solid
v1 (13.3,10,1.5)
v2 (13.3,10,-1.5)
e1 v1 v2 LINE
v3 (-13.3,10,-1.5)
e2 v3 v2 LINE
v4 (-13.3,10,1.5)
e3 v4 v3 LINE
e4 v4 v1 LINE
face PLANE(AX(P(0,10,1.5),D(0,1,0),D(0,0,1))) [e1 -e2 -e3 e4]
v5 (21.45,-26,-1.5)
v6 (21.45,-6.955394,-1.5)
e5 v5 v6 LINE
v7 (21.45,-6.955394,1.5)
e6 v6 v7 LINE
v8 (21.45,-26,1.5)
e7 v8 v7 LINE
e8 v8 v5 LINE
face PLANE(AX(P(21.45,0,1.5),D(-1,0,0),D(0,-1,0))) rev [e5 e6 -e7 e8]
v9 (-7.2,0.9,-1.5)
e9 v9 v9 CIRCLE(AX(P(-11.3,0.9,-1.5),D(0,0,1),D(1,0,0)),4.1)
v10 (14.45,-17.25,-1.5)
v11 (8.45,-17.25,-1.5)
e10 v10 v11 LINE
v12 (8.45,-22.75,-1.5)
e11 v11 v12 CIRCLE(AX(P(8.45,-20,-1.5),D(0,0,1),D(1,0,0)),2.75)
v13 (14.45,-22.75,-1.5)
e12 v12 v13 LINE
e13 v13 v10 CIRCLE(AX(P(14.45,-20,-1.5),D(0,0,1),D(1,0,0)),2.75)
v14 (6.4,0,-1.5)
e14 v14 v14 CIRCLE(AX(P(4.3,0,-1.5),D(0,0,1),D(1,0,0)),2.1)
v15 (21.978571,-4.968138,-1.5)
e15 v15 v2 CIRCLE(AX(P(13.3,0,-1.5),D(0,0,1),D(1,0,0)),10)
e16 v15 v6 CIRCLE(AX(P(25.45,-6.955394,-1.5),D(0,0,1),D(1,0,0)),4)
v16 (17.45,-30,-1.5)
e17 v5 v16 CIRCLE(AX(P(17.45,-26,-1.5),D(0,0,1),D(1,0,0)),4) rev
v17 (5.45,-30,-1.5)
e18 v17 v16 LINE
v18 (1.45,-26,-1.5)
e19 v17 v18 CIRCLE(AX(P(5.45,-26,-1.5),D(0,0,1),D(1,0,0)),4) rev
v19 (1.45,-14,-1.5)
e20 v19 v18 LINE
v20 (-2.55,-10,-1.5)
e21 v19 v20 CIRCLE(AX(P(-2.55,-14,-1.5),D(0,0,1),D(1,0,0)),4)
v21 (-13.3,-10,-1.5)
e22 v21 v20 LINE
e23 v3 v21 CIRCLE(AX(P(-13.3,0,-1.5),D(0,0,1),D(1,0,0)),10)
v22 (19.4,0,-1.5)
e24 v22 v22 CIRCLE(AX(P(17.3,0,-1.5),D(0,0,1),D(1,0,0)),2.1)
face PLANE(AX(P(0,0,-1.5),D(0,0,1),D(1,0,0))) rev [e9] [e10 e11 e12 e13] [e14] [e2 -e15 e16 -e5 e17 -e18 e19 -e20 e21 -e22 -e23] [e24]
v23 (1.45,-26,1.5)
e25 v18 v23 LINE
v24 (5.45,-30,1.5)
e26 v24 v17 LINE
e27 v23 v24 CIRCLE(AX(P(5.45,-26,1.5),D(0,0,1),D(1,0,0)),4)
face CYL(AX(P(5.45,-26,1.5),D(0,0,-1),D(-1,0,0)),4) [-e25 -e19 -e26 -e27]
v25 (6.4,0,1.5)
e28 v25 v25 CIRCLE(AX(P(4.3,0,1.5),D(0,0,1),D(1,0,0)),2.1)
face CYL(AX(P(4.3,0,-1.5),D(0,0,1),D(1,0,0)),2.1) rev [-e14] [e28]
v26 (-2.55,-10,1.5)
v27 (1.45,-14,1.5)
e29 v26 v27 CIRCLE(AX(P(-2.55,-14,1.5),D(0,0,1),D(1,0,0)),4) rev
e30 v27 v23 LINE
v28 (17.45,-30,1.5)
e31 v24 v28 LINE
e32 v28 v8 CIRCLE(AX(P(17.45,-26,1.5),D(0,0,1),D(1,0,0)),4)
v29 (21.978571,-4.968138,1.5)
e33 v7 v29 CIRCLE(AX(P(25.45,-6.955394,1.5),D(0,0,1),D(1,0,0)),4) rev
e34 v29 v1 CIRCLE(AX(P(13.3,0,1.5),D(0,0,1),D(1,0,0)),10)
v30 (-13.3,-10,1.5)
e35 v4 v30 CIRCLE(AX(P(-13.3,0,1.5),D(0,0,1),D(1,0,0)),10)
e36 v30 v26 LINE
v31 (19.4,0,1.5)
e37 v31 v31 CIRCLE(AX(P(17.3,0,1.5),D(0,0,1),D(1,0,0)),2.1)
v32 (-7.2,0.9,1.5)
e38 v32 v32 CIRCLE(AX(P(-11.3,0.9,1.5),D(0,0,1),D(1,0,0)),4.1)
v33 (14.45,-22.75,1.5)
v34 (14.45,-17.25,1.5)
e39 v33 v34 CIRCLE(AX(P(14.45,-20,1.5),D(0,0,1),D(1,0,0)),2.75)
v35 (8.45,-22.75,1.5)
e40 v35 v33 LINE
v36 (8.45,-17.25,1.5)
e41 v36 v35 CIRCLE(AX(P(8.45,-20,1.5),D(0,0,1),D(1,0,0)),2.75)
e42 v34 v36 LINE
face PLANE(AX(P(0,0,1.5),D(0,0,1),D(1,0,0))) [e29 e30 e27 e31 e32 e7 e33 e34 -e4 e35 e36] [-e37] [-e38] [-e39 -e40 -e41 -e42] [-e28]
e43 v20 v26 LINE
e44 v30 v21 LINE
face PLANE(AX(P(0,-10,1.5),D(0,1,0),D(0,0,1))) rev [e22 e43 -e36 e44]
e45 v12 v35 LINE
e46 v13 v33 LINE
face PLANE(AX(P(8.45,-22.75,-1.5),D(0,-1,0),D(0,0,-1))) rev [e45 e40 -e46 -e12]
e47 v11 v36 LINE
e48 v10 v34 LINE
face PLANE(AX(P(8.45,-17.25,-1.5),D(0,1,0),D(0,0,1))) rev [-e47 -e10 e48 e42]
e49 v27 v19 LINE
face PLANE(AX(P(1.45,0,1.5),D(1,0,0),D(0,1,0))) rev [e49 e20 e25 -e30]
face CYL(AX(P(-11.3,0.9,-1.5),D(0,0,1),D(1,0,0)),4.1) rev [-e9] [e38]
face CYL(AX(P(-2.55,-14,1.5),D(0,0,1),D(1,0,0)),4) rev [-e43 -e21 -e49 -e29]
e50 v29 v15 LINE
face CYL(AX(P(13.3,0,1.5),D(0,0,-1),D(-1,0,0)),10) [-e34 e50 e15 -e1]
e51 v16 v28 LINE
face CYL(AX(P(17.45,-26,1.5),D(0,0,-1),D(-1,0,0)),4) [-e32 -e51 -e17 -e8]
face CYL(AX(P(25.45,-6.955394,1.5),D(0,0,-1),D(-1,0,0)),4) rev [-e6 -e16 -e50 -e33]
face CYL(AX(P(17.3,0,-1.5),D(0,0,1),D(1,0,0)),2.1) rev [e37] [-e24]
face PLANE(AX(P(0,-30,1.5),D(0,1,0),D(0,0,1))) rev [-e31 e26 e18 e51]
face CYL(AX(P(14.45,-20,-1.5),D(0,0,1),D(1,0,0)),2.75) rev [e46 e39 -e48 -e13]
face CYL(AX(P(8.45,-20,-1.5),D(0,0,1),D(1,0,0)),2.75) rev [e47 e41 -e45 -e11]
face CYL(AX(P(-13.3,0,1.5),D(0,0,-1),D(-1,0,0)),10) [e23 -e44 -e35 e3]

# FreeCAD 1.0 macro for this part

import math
import FreeCAD as App
import Part
import Sketcher
Q = App.Units.Quantity


def edges_at(feature, points):
    """Names of the edges that pass closest to the given points."""
    edges = feature.Shape.Edges
    near = lambda p: min(range(len(edges)), key=lambda i: edges[i].distToShape(Part.Vertex(*p))[0])
    return sorted({f"Edge{near(p) + 1}" for p in points})

doc = App.newDocument("Part")
body = doc.addObject("PartDesign::Body", "Body")

sketch1 = body.newObject("Sketcher::SketchObject", "Sketch")
sketch1.AttachmentSupport = (doc.getObject("XY_Plane"), [""])
sketch1.MapMode = "FlatFace"
sketch1.addGeometry(Part.LineSegment(App.Vector(13.3, 10, 0), App.Vector(-13.3, 10, 0)), False)
sketch1.addGeometry(Part.ArcOfCircle(Part.Circle(App.Vector(-13.3, 0, 0), App.Vector(0, 0, 1), 10), math.radians(90), math.radians(270)), False)
sketch1.addGeometry(Part.LineSegment(App.Vector(-13.3, -10, 0), App.Vector(1.45, -10, 0)), False)
sketch1.addGeometry(Part.LineSegment(App.Vector(1.45, -10, 0), App.Vector(1.45, -30, 0)), False)
sketch1.addGeometry(Part.LineSegment(App.Vector(1.45, -30, 0), App.Vector(21.45, -30, 0)), False)
sketch1.addGeometry(Part.LineSegment(App.Vector(21.45, -30, 0), App.Vector(21.45, -5.79461, 0)), False)
sketch1.addGeometry(Part.ArcOfCircle(Part.Circle(App.Vector(13.3, 0, 0), App.Vector(0, 0, 1), 10), math.radians(-35.412638), math.radians(90)), False)
sketch1.addConstraint(Sketcher.Constraint("Tangent", 0, 2, 1, 1))
sketch1.addConstraint(Sketcher.Constraint("Tangent", 1, 2, 2, 1))
sketch1.addConstraint(Sketcher.Constraint("Coincident", 2, 2, 3, 1))
sketch1.addConstraint(Sketcher.Constraint("Coincident", 3, 2, 4, 1))
sketch1.addConstraint(Sketcher.Constraint("Coincident", 4, 2, 5, 1))
sketch1.addConstraint(Sketcher.Constraint("Coincident", 5, 2, 6, 1))
sketch1.addConstraint(Sketcher.Constraint("Tangent", 6, 2, 0, 1))
sketch1.addConstraint(Sketcher.Constraint("Horizontal", 0))
sketch1.addConstraint(Sketcher.Constraint("Horizontal", 2))
sketch1.addConstraint(Sketcher.Constraint("Vertical", 3))
sketch1.addConstraint(Sketcher.Constraint("Horizontal", 4))
sketch1.addConstraint(Sketcher.Constraint("Vertical", 5))
sketch1.addConstraint(Sketcher.Constraint("Equal", 1, 6))
sketch1.addConstraint(Sketcher.Constraint("Symmetric", 1, 3, 6, 3, -1, 1))
sketch1.addConstraint(Sketcher.Constraint("Equal", 4, 3))
sketch1.addConstraint(Sketcher.Constraint("Radius", 1, Q("10 mm")))
sketch1.addConstraint(Sketcher.Constraint("DistanceX", 4, 1, 4, 2, Q("20 mm")))
sketch1.addConstraint(Sketcher.Constraint("DistanceX", 0, 2, 0, 1, Q("26.6 mm")))
sketch1.addConstraint(Sketcher.Constraint("DistanceX", 2, 1, 2, 2, Q("14.75 mm")))
pad1 = body.newObject("PartDesign::Pad", "Pad")
pad1.Profile = sketch1
pad1.Length = 3
pad1.Midplane = True
doc.recompute()

fillet = body.newObject("PartDesign::Fillet", "Fillet")
fillet.Base = (pad1, edges_at(pad1, [
    (21.45, -5.795, 0),
    (21.45, -30, 0),
    (1.45, -30, 0),
    (1.45, -10, 0),
]))
fillet.Radius = 4

sketch2 = body.newObject("Sketcher::SketchObject", "Sketch001")
sketch2.AttachmentSupport = (doc.getObject("XY_Plane"), [""])
sketch2.MapMode = "FlatFace"
sketch2.AttachmentOffset = App.Placement(App.Vector(0, 0, 1.5), App.Rotation())
sketch2.addGeometry(Part.Circle(App.Vector(-11.3, 0.9, 0), App.Vector(0, 0, 1), 4.1), False)
sketch2.addGeometry(Part.Circle(App.Vector(4.3, 0, 0), App.Vector(0, 0, 1), 2.1), False)
sketch2.addGeometry(Part.Circle(App.Vector(17.3, 0, 0), App.Vector(0, 0, 1), 2.1), False)
sketch2.addGeometry(Part.LineSegment(App.Vector(14.45, -17.25, 0), App.Vector(8.45, -17.25, 0)), False)
sketch2.addGeometry(Part.ArcOfCircle(Part.Circle(App.Vector(8.45, -20, 0), App.Vector(0, 0, 1), 2.75), math.radians(90), math.radians(270)), False)
sketch2.addGeometry(Part.LineSegment(App.Vector(8.45, -22.75, 0), App.Vector(14.45, -22.75, 0)), False)
sketch2.addGeometry(Part.ArcOfCircle(Part.Circle(App.Vector(14.45, -20, 0), App.Vector(0, 0, 1), 2.75), math.radians(-90), math.radians(90)), False)
sketch2.addConstraint(Sketcher.Constraint("Tangent", 3, 2, 4, 1))
sketch2.addConstraint(Sketcher.Constraint("Tangent", 4, 2, 5, 1))
sketch2.addConstraint(Sketcher.Constraint("Tangent", 5, 2, 6, 1))
sketch2.addConstraint(Sketcher.Constraint("Tangent", 6, 2, 3, 1))
sketch2.addConstraint(Sketcher.Constraint("Horizontal", 3))
sketch2.addConstraint(Sketcher.Constraint("Horizontal", 5))
sketch2.addConstraint(Sketcher.Constraint("Equal", 1, 2))
sketch2.addConstraint(Sketcher.Constraint("PointOnObject", 1, 3, -1))
sketch2.addConstraint(Sketcher.Constraint("PointOnObject", 2, 3, -1))
sketch2.addConstraint(Sketcher.Constraint("Diameter", 0, Q("8.2 mm")))
sketch2.addConstraint(Sketcher.Constraint("Diameter", 1, Q("4.2 mm")))
sketch2.addConstraint(Sketcher.Constraint("DistanceX", 3, 2, 3, 1, Q("6 mm")))
sketch2.addConstraint(Sketcher.Constraint("Radius", 4, Q("2.75 mm")))
sketch2.addConstraint(Sketcher.Constraint("DistanceY", 4, 3, -1, 1, Q("20 mm")))
sketch2.addConstraint(Sketcher.Constraint("DistanceX", 1, 3, 2, 3, Q("13 mm")))
sketch2.addConstraint(Sketcher.Constraint("DistanceX", 0, 3, -1, 1, Q("11.3 mm")))
sketch2.addConstraint(Sketcher.Constraint("DistanceY", -1, 1, 0, 3, Q("0.9 mm")))
sketch2.addConstraint(Sketcher.Constraint("DistanceX", -1, 1, 1, 3, Q("4.3 mm")))
sketch2.addConstraint(Sketcher.Constraint("DistanceX", -1, 1, 4, 3, Q("8.45 mm")))
pocket1 = body.newObject("PartDesign::Pocket", "Pocket")
pocket1.Profile = sketch2
pocket1.Type = "ThroughAll"

doc.recompute()
